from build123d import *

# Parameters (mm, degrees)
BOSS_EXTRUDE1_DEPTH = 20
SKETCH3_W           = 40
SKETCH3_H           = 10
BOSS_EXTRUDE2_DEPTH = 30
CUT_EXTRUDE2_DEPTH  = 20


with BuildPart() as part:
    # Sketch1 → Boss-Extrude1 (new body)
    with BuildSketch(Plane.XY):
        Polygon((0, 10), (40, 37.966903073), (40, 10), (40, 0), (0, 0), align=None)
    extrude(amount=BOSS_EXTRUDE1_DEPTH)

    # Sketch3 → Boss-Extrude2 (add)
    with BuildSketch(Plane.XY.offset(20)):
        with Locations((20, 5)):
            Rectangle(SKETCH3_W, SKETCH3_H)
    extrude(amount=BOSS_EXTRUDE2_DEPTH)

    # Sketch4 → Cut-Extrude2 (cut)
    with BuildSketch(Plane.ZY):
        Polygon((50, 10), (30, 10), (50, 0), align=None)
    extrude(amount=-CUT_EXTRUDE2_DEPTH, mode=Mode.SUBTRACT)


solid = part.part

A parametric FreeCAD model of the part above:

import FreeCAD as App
import Part
import Sketcher

V = App.Vector
Q = App.Units.Quantity

doc = App.newDocument("Part")
body = doc.addObject("PartDesign::Body", "Body")

# Sketch on XY plane
sketch1 = doc.addObject("Sketcher::SketchObject", "Sketch")
body.addObject(sketch1)
sketch1.AttachmentSupport = (doc.XY_Plane, [""])
sketch1.MapMode = "FlatFace"
sketch1.addGeometry([
    Part.LineSegment(V(40, 38, 0), V(0, 10, 0)),
    Part.LineSegment(V(0, 10, 0), V(0, 0, 0)),
    Part.LineSegment(V(0, 0, 0), V(40, 0, 0)),
    Part.LineSegment(V(40, 0, 0), V(40, 38, 0)),
], False)
sketch1.addConstraint([
    Sketcher.Constraint("Coincident", 0, 2, 1, 1),
    Sketcher.Constraint("Coincident", 1, 2, 2, 1),
    Sketcher.Constraint("Coincident", 2, 2, 3, 1),
    Sketcher.Constraint("Coincident", 3, 2, 0, 1),
    Sketcher.Constraint("Vertical", 1),
    Sketcher.Constraint("Horizontal", 2),
    Sketcher.Constraint("Vertical", 3),
    Sketcher.Constraint("Coincident", 1, 2, -1, 1),
    Sketcher.Constraint("DistanceX", 2, 1, 2, 2, Q("40 mm")),
    Sketcher.Constraint("DistanceY", 1, 2, 1, 1, Q("10 mm")),
    Sketcher.Constraint("Distance", 0, Q("48.80725 mm")),
])
pad1 = doc.addObject("PartDesign::Pad", "Pad")
body.addObject(pad1)
pad1.Profile = sketch1
pad1.Length = 20

# Sketch on XY plane
sketch2 = doc.addObject("Sketcher::SketchObject", "Sketch001")
body.addObject(sketch2)
sketch2.AttachmentSupport = (doc.XY_Plane, [""])
sketch2.MapMode = "FlatFace"
sketch2.AttachmentOffset = App.Placement(V(0, 0, 20), App.Rotation())
sketch2.addGeometry([
    Part.LineSegment(V(0, 10, 0), V(0, 0, 0)),
    Part.LineSegment(V(0, 0, 0), V(40, 0, 0)),
    Part.LineSegment(V(40, 0, 0), V(40, 10, 0)),
    Part.LineSegment(V(40, 10, 0), V(0, 10, 0)),
], False)
sketch2.addConstraint([
    Sketcher.Constraint("Coincident", 0, 2, 1, 1),
    Sketcher.Constraint("Coincident", 1, 2, 2, 1),
    Sketcher.Constraint("Coincident", 2, 2, 3, 1),
    Sketcher.Constraint("Coincident", 3, 2, 0, 1),
    Sketcher.Constraint("Vertical", 0),
    Sketcher.Constraint("Horizontal", 1),
    Sketcher.Constraint("Vertical", 2),
    Sketcher.Constraint("Horizontal", 3),
    Sketcher.Constraint("Coincident", 0, 2, -1, 1),
    Sketcher.Constraint("DistanceX", 1, 1, 1, 2, Q("40 mm")),
    Sketcher.Constraint("DistanceY", 0, 2, 0, 1, Q("10 mm")),
])
pad2 = doc.addObject("PartDesign::Pad", "Pad001")
body.addObject(pad2)
pad2.Profile = sketch2
pad2.Length = 30

# Sketch on YZ plane
sketch3 = doc.addObject("Sketcher::SketchObject", "Sketch002")
body.addObject(sketch3)
sketch3.AttachmentSupport = (doc.YZ_Plane, [""])
sketch3.MapMode = "FlatFace"
sketch3.addGeometry([
    Part.LineSegment(V(10, 50, 0), V(10, 30, 0)),
    Part.LineSegment(V(10, 30, 0), V(0, 50, 0)),
    Part.LineSegment(V(0, 50, 0), V(10, 50, 0)),
], False)
sketch3.addConstraint([
    Sketcher.Constraint("Coincident", 0, 2, 1, 1),
    Sketcher.Constraint("Coincident", 1, 2, 2, 1),
    Sketcher.Constraint("Coincident", 2, 2, 0, 1),
    Sketcher.Constraint("Vertical", 0),
    Sketcher.Constraint("Horizontal", 2),
    Sketcher.Constraint("PointOnObject", 1, 2, -2),
    Sketcher.Constraint("DistanceX", 2, 1, 2, 2, Q("10 mm")),
    Sketcher.Constraint("DistanceY", 0, 2, 0, 1, Q("20 mm")),
    Sketcher.Constraint("DistanceY", -1, 1, 0, 2, Q("30 mm")),
])
pocket1 = doc.addObject("PartDesign::Pocket", "Pocket")
body.addObject(pocket1)
pocket1.Profile = sketch3
pocket1.Length = 20
pocket1.Reversed = True

doc.recompute()
